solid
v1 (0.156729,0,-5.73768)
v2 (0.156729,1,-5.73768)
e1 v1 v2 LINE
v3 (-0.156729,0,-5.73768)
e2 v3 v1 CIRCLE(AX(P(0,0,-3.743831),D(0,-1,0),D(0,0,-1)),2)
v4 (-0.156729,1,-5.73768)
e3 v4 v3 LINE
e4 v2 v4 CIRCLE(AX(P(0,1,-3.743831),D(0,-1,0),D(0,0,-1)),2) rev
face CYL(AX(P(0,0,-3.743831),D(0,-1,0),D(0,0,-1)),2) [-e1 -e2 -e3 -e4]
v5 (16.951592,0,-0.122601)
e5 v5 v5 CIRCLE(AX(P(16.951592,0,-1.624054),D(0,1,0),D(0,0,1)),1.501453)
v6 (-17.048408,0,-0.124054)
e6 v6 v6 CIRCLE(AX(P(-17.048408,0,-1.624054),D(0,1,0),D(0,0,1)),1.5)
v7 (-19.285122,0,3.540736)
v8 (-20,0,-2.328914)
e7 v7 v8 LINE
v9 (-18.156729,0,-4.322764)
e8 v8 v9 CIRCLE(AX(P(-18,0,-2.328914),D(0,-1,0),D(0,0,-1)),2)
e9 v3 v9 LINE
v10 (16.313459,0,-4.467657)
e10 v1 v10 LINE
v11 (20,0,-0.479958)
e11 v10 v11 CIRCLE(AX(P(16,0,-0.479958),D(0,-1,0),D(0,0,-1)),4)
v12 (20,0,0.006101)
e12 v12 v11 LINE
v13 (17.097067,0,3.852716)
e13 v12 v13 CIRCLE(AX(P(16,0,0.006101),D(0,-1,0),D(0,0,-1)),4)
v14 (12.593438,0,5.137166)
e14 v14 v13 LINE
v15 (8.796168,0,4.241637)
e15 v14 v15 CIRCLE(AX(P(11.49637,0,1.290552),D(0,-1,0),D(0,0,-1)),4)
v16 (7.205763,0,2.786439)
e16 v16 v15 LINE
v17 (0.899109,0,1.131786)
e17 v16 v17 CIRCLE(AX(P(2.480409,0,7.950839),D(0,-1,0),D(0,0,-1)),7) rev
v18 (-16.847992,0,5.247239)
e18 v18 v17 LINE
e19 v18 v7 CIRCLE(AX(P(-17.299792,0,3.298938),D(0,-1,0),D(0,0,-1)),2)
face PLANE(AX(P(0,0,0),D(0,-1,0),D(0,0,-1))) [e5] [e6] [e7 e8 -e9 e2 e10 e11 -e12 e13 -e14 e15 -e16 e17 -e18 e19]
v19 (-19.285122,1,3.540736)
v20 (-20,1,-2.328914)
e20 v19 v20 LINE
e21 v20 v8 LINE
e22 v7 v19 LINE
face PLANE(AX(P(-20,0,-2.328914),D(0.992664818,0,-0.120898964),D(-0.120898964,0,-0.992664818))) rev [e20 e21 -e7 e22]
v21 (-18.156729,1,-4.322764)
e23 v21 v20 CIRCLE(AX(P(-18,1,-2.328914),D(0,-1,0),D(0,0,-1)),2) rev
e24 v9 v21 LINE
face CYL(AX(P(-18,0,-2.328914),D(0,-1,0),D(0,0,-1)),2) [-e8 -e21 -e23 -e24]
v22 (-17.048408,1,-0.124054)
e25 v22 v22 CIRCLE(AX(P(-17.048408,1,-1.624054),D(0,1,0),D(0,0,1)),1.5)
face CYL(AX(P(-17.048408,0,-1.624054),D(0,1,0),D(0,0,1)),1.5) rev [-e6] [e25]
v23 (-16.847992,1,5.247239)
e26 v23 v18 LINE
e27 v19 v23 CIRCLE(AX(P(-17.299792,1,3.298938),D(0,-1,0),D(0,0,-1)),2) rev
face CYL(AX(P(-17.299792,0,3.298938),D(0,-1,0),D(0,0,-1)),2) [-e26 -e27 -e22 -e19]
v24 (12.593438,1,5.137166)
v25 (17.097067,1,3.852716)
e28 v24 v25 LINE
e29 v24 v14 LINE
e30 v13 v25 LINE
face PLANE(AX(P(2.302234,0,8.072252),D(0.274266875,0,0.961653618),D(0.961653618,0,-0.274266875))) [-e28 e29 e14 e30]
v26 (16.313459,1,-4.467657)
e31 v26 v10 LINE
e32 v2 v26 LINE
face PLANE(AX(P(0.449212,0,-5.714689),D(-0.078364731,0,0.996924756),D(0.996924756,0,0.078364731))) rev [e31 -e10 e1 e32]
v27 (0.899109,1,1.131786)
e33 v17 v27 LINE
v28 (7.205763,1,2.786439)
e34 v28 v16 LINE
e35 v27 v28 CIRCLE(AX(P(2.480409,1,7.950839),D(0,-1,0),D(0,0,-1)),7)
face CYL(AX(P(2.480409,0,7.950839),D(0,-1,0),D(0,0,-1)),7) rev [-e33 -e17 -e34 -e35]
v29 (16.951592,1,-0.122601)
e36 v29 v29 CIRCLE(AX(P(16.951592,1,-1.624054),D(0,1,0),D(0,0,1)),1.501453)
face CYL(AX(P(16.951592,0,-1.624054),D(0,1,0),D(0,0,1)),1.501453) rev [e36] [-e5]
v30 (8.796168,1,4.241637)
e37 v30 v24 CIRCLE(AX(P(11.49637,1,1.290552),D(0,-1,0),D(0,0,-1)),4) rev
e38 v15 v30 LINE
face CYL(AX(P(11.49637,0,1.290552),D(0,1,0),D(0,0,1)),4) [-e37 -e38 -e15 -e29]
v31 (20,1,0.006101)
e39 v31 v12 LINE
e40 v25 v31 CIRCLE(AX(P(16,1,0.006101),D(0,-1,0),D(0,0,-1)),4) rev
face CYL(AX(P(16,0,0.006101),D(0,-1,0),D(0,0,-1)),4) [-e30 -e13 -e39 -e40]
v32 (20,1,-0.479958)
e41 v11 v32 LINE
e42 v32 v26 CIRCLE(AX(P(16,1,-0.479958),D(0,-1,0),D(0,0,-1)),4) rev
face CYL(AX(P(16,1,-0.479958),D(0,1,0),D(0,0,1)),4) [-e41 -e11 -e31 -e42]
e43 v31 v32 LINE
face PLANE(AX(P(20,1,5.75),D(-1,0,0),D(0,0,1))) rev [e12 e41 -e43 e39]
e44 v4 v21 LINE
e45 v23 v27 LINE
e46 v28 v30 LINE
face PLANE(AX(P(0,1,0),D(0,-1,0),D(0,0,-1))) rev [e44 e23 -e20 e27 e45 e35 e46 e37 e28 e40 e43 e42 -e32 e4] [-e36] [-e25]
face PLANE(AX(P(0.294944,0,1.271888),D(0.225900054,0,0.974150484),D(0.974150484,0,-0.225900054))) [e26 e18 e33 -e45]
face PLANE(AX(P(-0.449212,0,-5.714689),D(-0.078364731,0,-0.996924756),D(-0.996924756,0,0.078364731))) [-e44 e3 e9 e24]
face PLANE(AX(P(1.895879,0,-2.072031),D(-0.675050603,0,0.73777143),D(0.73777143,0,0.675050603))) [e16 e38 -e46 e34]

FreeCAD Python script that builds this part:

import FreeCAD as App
import Part
import Sketcher
Q = App.Units.Quantity


def edges_at(feature, points):
    """Names of the edges that pass closest to the given points."""
    edges = feature.Shape.Edges
    near = lambda p: min(range(len(edges)), key=lambda i: edges[i].distToShape(Part.Vertex(*p))[0])
    return sorted({f"Edge{near(p) + 1}" for p in points})

doc = App.newDocument("Part")
body = doc.addObject("PartDesign::Body", "Body")

# Sketch on XZ plane
sketch1 = body.newObject("Sketcher::SketchObject", "Sketch")
sketch1.AttachmentSupport = (doc.getObject("XZ_Plane"), [""])
sketch1.MapMode = "FlatFace"
sketch1.addGeometry([
    Part.LineSegment(App.Vector(-20, -5.75, 0), App.Vector(-20, 5.75, 0)),
    Part.LineSegment(App.Vector(-20, 5.75, 0), App.Vector(20, 5.75, 0)),
    Part.LineSegment(App.Vector(20, 5.75, 0), App.Vector(20, -5.75, 0)),
    Part.LineSegment(App.Vector(20, -5.75, 0), App.Vector(-20, -5.75, 0)),
], False)
sketch1.addConstraint([
    Sketcher.Constraint("Coincident", 0, 2, 1, 1),
    Sketcher.Constraint("Coincident", 1, 2, 2, 1),
    Sketcher.Constraint("Coincident", 2, 2, 3, 1),
    Sketcher.Constraint("Coincident", 3, 2, 0, 1),
    Sketcher.Constraint("Vertical", 0),
    Sketcher.Constraint("Horizontal", 1),
    Sketcher.Constraint("Vertical", 2),
    Sketcher.Constraint("Horizontal", 3),
    Sketcher.Constraint("Symmetric", 0, 2, 2, 2, -1, 1),
    Sketcher.Constraint("DistanceX", 1, 1, 1, 2, Q("40 mm")),
    Sketcher.Constraint("DistanceY", 0, 1, 0, 2, Q("11.5 mm")),
])
pad1 = body.newObject("PartDesign::Pad", "Pad")
pad1.Profile = sketch1
pad1.Length = 1
pad1.Reversed = True

# Sketch on XZ plane
sketch2 = body.newObject("Sketcher::SketchObject", "Sketch001")
sketch2.AttachmentSupport = (doc.getObject("XZ_Plane"), [""])
sketch2.MapMode = "FlatFace"
sketch2.AttachmentOffset = App.Placement(App.Vector(0, 0, -1), App.Rotation())
sketch2.addGeometry([
    Part.LineSegment(App.Vector(-20, -4.177871, 0), App.Vector(0, -5.75, 0)),  # 0
    Part.LineSegment(App.Vector(0, -5.75, 0), App.Vector(-20, -5.75, 0)),  # 1
    Part.LineSegment(App.Vector(-20, -5.75, 0), App.Vector(-20, -4.177871, 0)),  # 2
    Part.LineSegment(App.Vector(20, -5.75, 0), App.Vector(0, -5.75, 0)),  # 3
    Part.LineSegment(App.Vector(0, -5.75, 0), App.Vector(20, -4.177871, 0)),  # 4
    Part.LineSegment(App.Vector(20, -4.177871, 0), App.Vector(20, -5.75, 0)),  # 5
], False)
sketch2.addConstraint([
    Sketcher.Constraint("Coincident", 0, 2, 1, 1),
    Sketcher.Constraint("Coincident", 1, 2, 2, 1),
    Sketcher.Constraint("Coincident", 2, 2, 0, 1),
    Sketcher.Constraint("Coincident", 3, 2, 4, 1),
    Sketcher.Constraint("Coincident", 4, 2, 5, 1),
    Sketcher.Constraint("Coincident", 5, 2, 3, 1),
    Sketcher.Constraint("Horizontal", 1),
    Sketcher.Constraint("Vertical", 2),
    Sketcher.Constraint("Horizontal", 3),
    Sketcher.Constraint("Vertical", 5),
    Sketcher.Constraint("Coincident", 3, 2, 0, 2),
    Sketcher.Constraint("Symmetric", 2, 2, 4, 2, -2),
    Sketcher.Constraint("PointOnObject", 0, 2, -2),
    Sketcher.Constraint("DistanceX", 1, 2, 1, 1, Q("20 mm")),
    Sketcher.Constraint("DistanceY", 0, 2, -1, 1, Q("5.75 mm")),
    Sketcher.Constraint("DistanceY", 2, 1, 2, 2, Q("1.572129 mm")),
])
pocket1 = body.newObject("PartDesign::Pocket", "Pocket")
pocket1.Profile = sketch2
pocket1.Length = 1
pocket1.Reversed = True
doc.recompute()

fillet = body.newObject("PartDesign::Fillet", "Fillet")
fillet.Base = (pocket1, edges_at(pocket1, [(0, 0.5, -5.75)]))
fillet.Radius = 2
doc.recompute()

fillet2 = body.newObject("PartDesign::Fillet", "Fillet001")
fillet2.Base = (fillet, edges_at(fillet, [(20, 0.5, -4.178)]))
fillet2.Radius = 4
doc.recompute()

fillet3 = body.newObject("PartDesign::Fillet", "Fillet002")
fillet3.Base = (fillet2, edges_at(fillet2, [(-20, 0.5, -4.178)]))
fillet3.Radius = 2

# Sketch on XZ plane
sketch3 = body.newObject("Sketcher::SketchObject", "Sketch002")
sketch3.AttachmentSupport = (doc.getObject("XZ_Plane"), [""])
sketch3.MapMode = "FlatFace"
sketch3.AttachmentOffset = App.Placement(App.Vector(0, 0, -1), App.Rotation())
sketch3.addGeometry([
    Part.LineSegment(App.Vector(-19.01605, 5.75, 0), App.Vector(-20, -2.328914, 0)),
    Part.LineSegment(App.Vector(-20, -2.328914, 0), App.Vector(-20, 5.75, 0)),
    Part.LineSegment(App.Vector(-20, 5.75, 0), App.Vector(-19.01605, 5.75, 0)),
], False)
sketch3.addConstraint([
    Sketcher.Constraint("Coincident", 0, 2, 1, 1),
    Sketcher.Constraint("Coincident", 1, 2, 2, 1),
    Sketcher.Constraint("Coincident", 2, 2, 0, 1),
    Sketcher.Constraint("Vertical", 1),
    Sketcher.Constraint("Horizontal", 2),
    Sketcher.Constraint("DistanceX", 0, 2, -1, 1, Q("20 mm")),
    Sketcher.Constraint("DistanceY", -1, 1, 1, 2, Q("5.75 mm")),
    Sketcher.Constraint("DistanceX", 2, 1, 2, 2, Q("0.98395 mm")),
    Sketcher.Constraint("DistanceY", 1, 1, 1, 2, Q("8.078914 mm")),
])
pocket2 = body.newObject("PartDesign::Pocket", "Pocket001")
pocket2.Profile = sketch3
pocket2.Length = 1
pocket2.Reversed = True

# Sketch on XZ plane
sketch4 = body.newObject("Sketcher::SketchObject", "Sketch003")
sketch4.AttachmentSupport = (doc.getObject("XZ_Plane"), [""])
sketch4.MapMode = "FlatFace"
sketch4.AttachmentOffset = App.Placement(App.Vector(0, 0, -1), App.Rotation())
sketch4.addGeometry([
    Part.LineSegment(App.Vector(4.487842, 0.299579, 0), App.Vector(-19.01605, 5.75, 0)),  # 0
    Part.LineSegment(App.Vector(-19.01605, 5.75, 0), App.Vector(10.444677, 5.75, 0)),  # 1
    Part.LineSegment(App.Vector(10.444677, 5.75, 0), App.Vector(4.487842, 0.299579, 0)),  # 2
    Part.LineSegment(App.Vector(20, 3.024789, 0), App.Vector(10.444677, 5.75, 0)),  # 3
    Part.LineSegment(App.Vector(10.444677, 5.75, 0), App.Vector(20, 5.75, 0)),  # 4
    Part.LineSegment(App.Vector(20, 5.75, 0), App.Vector(20, 3.024789, 0)),  # 5
], False)
sketch4.addConstraint([
    Sketcher.Constraint("Coincident", 0, 2, 1, 1),
    Sketcher.Constraint("Coincident", 1, 2, 2, 1),
    Sketcher.Constraint("Coincident", 2, 2, 0, 1),
    Sketcher.Constraint("Coincident", 3, 2, 4, 1),
    Sketcher.Constraint("Coincident", 4, 2, 5, 1),
    Sketcher.Constraint("Coincident", 5, 2, 3, 1),
    Sketcher.Constraint("Horizontal", 1),
    Sketcher.Constraint("Horizontal", 4),
    Sketcher.Constraint("Vertical", 5),
    Sketcher.Constraint("Coincident", 3, 2, 1, 2),
    Sketcher.Constraint("DistanceX", -1, 1, 4, 2, Q("20 mm")),
    Sketcher.Constraint("DistanceY", -1, 1, 0, 2, Q("5.75 mm")),
    Sketcher.Constraint("DistanceY", 5, 2, 5, 1, Q("2.725211 mm")),
    Sketcher.Constraint("Distance", 0, Q("24.127578 mm")),
    Sketcher.Constraint("DistanceX", 1, 1, 1, 2, Q("29.460727 mm")),
    Sketcher.Constraint("DistanceX", 4, 1, 4, 2, Q("9.555323 mm")),
    Sketcher.Constraint("DistanceX", -1, 1, 2, 2, Q("4.487842 mm")),
])
pocket3 = body.newObject("PartDesign::Pocket", "Pocket002")
pocket3.Profile = sketch4
pocket3.Length = 1
pocket3.Reversed = True
doc.recompute()

fillet4 = body.newObject("PartDesign::Fillet", "Fillet003")
fillet4.Base = (pocket3, edges_at(pocket3, [(-19.016, 0.5, 5.75)]))
fillet4.Radius = 2
doc.recompute()

fillet5 = body.newObject("PartDesign::Fillet", "Fillet004")
fillet5.Base = (fillet4, edges_at(fillet4, [(4.488, 0.5, 0.3)]))
fillet5.Radius = 7
doc.recompute()

fillet6 = body.newObject("PartDesign::Fillet", "Fillet005")
fillet6.Base = (fillet5, edges_at(fillet5, [(10.445, 0.5, 5.75)]))
fillet6.Radius = 4
doc.recompute()

fillet7 = body.newObject("PartDesign::Fillet", "Fillet006")
fillet7.Base = (fillet6, edges_at(fillet6, [(20, 0.5, 3.025)]))
fillet7.Radius = 4

# Sketch on XZ plane
sketch5 = body.newObject("Sketcher::SketchObject", "Sketch004")
sketch5.AttachmentSupport = (doc.getObject("XZ_Plane"), [""])
sketch5.MapMode = "FlatFace"
sketch5.AttachmentOffset = App.Placement(App.Vector(0, 0, -1), App.Rotation())
sketch5.addGeometry([
    Part.Circle(App.Vector(-17.048408, -1.624054, 0), App.Vector(0, 0, 1), 1.5),
    Part.Circle(App.Vector(16.951592, -1.624054, 0), App.Vector(0, 0, 1), 1.501453),
], False)
sketch5.addConstraint([
    Sketcher.Constraint("Horizontal", 0, 3, 1, 3),
    Sketcher.Constraint("Diameter", 0, Q("3 mm")),
    Sketcher.Constraint("DistanceX", 0, 3, 1, 3, Q("34 mm")),
    Sketcher.Constraint("Diameter", 1, Q("3.002907 mm")),
    Sketcher.Constraint("DistanceX", 0, 3, -1, 1, Q("17.048408 mm")),
    Sketcher.Constraint("DistanceY", 0, 3, -1, 1, Q("1.624054 mm")),
])
pocket4 = body.newObject("PartDesign::Pocket", "Pocket003")
pocket4.Profile = sketch5
pocket4.Length = 1
pocket4.Reversed = True

doc.recompute()
